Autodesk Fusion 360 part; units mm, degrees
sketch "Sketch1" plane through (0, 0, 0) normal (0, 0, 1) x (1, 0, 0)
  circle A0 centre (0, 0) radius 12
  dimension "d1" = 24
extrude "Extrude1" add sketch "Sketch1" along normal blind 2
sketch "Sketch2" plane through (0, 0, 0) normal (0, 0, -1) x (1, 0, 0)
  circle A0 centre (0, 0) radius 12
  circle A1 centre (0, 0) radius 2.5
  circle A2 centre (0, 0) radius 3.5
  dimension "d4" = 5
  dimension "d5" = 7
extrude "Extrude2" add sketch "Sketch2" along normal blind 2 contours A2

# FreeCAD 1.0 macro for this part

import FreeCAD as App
import Part
import Sketcher

V = App.Vector
Q = App.Units.Quantity

doc = App.newDocument("Part")
params = doc.addObject("Spreadsheet::Sheet", "Params")
for row, (alias, value) in enumerate([
    ("sketch1_diameter", "24 mm"),
    ("pad1_length", "2 mm"),
    ("sketch2_diameter", "7 mm"),
    ("sketch2_diameter2", "5 mm"),
    ("pad2_length", "2 mm"),
], start=1):
    params.set(f"A{row}", alias)
    params.set(f"B{row}", "=" + value)
    params.setAlias(f"B{row}", alias)

body = doc.addObject("PartDesign::Body", "Body")

sketch1 = doc.addObject("Sketcher::SketchObject", "Sketch")
body.addObject(sketch1)
sketch1.AttachmentSupport = (doc.XY_Plane, [""])
sketch1.MapMode = "FlatFace"
sketch1.addGeometry(Part.Circle(V(0, 0, 0), V(0, 0, 1), 12), False)
sketch1.addConstraint([
    Sketcher.Constraint("Coincident", 0, 3, -1, 1),
    Sketcher.Constraint("Diameter", 0, Q("24 mm")),
])
sketch1.setExpression("Constraints[1]", "Params.sketch1_diameter")
pad1 = doc.addObject("PartDesign::Pad", "Pad")
body.addObject(pad1)
pad1.Profile = sketch1
pad1.setExpression("Length", "Params.pad1_length")

sketch2 = doc.addObject("Sketcher::SketchObject", "Sketch001")
body.addObject(sketch2)
sketch2.AttachmentSupport = (doc.XY_Plane, [""])
sketch2.MapMode = "FlatFace"
sketch2.addGeometry([
    Part.Circle(V(0, 0, 0), V(0, 0, 1), 3.5),
    Part.Circle(V(0, 0, 0), V(0, 0, 1), 2.5),
], False)
sketch2.addConstraint([
    Sketcher.Constraint("Coincident", 0, 3, -1, 1),
    Sketcher.Constraint("Coincident", 1, 3, -1, 1),
    Sketcher.Constraint("Diameter", 0, Q("7 mm")),
    Sketcher.Constraint("Diameter", 1, Q("5 mm")),
])
sketch2.setExpression("Constraints[2]", "Params.sketch2_diameter")
sketch2.setExpression("Constraints[3]", "Params.sketch2_diameter2")
pad2 = doc.addObject("PartDesign::Pad", "Pad001")
body.addObject(pad2)
pad2.Profile = sketch2
pad2.setExpression("Length", "Params.pad2_length")
pad2.Reversed = True

doc.recompute()
